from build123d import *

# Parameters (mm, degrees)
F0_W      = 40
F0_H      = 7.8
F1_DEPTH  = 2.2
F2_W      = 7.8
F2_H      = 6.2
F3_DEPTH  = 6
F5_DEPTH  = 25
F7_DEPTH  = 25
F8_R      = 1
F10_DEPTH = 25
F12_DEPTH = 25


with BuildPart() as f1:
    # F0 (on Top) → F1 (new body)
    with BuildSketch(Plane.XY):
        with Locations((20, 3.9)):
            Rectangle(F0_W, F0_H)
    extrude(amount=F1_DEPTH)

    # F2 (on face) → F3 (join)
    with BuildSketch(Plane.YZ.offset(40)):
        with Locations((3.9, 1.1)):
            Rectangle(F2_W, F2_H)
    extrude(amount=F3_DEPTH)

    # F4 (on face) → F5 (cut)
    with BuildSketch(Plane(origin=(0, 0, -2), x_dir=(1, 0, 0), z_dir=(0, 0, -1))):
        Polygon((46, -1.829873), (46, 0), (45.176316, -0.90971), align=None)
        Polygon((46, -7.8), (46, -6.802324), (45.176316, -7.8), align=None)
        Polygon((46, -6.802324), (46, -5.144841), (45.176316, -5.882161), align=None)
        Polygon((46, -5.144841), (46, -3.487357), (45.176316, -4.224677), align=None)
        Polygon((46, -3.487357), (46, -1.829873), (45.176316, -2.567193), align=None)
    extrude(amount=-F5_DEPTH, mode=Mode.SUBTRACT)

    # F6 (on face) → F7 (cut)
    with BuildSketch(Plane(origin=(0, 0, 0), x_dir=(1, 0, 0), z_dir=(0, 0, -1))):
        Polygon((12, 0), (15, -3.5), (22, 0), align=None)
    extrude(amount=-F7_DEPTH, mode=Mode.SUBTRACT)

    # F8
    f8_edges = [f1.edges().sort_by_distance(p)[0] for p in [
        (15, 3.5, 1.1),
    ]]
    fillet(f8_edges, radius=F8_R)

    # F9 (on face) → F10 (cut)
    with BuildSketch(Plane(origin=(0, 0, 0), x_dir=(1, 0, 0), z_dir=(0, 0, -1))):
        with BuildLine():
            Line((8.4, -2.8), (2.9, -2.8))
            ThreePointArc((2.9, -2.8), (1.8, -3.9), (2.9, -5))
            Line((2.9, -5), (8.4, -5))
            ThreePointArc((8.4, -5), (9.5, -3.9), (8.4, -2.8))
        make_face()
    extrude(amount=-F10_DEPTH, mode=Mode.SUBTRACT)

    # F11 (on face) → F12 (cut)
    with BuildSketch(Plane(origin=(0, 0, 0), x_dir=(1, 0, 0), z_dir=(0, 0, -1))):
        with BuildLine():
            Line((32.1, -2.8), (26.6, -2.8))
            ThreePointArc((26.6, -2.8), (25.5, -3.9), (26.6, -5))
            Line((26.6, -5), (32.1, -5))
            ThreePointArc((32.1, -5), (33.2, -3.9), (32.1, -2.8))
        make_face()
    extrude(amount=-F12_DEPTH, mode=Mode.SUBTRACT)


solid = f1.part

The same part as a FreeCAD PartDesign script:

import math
import FreeCAD as App
import Part
import Sketcher
from FreeCAD import Vector
Q = App.Units.Quantity


def edges_at(feature, points):
    """Names of the edges that pass closest to the given points."""
    edges = feature.Shape.Edges
    near = lambda p: min(range(len(edges)), key=lambda i: edges[i].distToShape(Part.Vertex(*p))[0])
    return sorted({f"Edge{near(p) + 1}" for p in points})

doc = App.newDocument("Part")
params = doc.addObject("Spreadsheet::Sheet", "Params")
for row, (alias, value) in enumerate([
    ("sketch1_width", "40 mm"),
    ("sketch1_height", "7.8 mm"),
    ("pad1_length", "2.2 mm"),
    ("sketch2_width", "7.8 mm"),
    ("sketch2_height", "6.2 mm"),
    ("pad2_length", "6 mm"),
    ("pocket1_length", "25 mm"),
    ("sketch4_width", "10 mm"),
    ("pocket2_length", "25 mm"),
    ("fillet_radius", "1 mm"),
    ("sketch5_radius", "1.1 mm"),
    ("sketch5_width", "5.5 mm"),
    ("pocket3_length", "25 mm"),
    ("sketch6_radius", "1.1 mm"),
    ("sketch6_width", "5.5 mm"),
    ("pocket4_length", "25 mm"),
], start=1):
    params.set(f"A{row}", alias)
    params.set(f"B{row}", "=" + value)
    params.setAlias(f"B{row}", alias)

body = doc.addObject("PartDesign::Body", "Body")

# Sketch on XY plane
sketch1 = doc.addObject("Sketcher::SketchObject", "Sketch")
body.addObject(sketch1)
sketch1.AttachmentSupport = (doc.XY_Plane, [""])
sketch1.MapMode = "FlatFace"
sketch1.addGeometry([
    Part.LineSegment(Vector(0, 7.8, 0), Vector(0, 0, 0)),
    Part.LineSegment(Vector(0, 0, 0), Vector(40, 0, 0)),
    Part.LineSegment(Vector(40, 0, 0), Vector(40, 7.8, 0)),
    Part.LineSegment(Vector(40, 7.8, 0), Vector(0, 7.8, 0)),
], False)
sketch1.addConstraint([
    Sketcher.Constraint("Coincident", 0, 2, 1, 1),
    Sketcher.Constraint("Coincident", 1, 2, 2, 1),
    Sketcher.Constraint("Coincident", 2, 2, 3, 1),
    Sketcher.Constraint("Coincident", 3, 2, 0, 1),
    Sketcher.Constraint("Vertical", 0),
    Sketcher.Constraint("Horizontal", 1),
    Sketcher.Constraint("Vertical", 2),
    Sketcher.Constraint("Horizontal", 3),
    Sketcher.Constraint("Coincident", 0, 2, -1, 1),
    Sketcher.Constraint("DistanceX", 1, 1, 1, 2, Q("40 mm")),
    Sketcher.Constraint("DistanceY", 0, 2, 0, 1, Q("7.8 mm")),
])
sketch1.setExpression("Constraints[9]", "Params.sketch1_width")
sketch1.setExpression("Constraints[10]", "Params.sketch1_height")
pad1 = doc.addObject("PartDesign::Pad", "Pad")
body.addObject(pad1)
pad1.Profile = sketch1
pad1.setExpression("Length", "Params.pad1_length")

# Sketch on YZ plane
sketch2 = doc.addObject("Sketcher::SketchObject", "Sketch001")
body.addObject(sketch2)
sketch2.AttachmentSupport = (doc.YZ_Plane, [""])
sketch2.MapMode = "FlatFace"
sketch2.AttachmentOffset = App.Placement(Vector(0, 0, 40), App.Rotation())
sketch2.addGeometry([
    Part.LineSegment(Vector(0, 4.2, 0), Vector(0, -2, 0)),
    Part.LineSegment(Vector(0, -2, 0), Vector(7.8, -2, 0)),
    Part.LineSegment(Vector(7.8, -2, 0), Vector(7.8, 4.2, 0)),
    Part.LineSegment(Vector(7.8, 4.2, 0), Vector(0, 4.2, 0)),
], False)
sketch2.addConstraint([
    Sketcher.Constraint("Coincident", 0, 2, 1, 1),
    Sketcher.Constraint("Coincident", 1, 2, 2, 1),
    Sketcher.Constraint("Coincident", 2, 2, 3, 1),
    Sketcher.Constraint("Coincident", 3, 2, 0, 1),
    Sketcher.Constraint("Vertical", 0),
    Sketcher.Constraint("Horizontal", 1),
    Sketcher.Constraint("Vertical", 2),
    Sketcher.Constraint("Horizontal", 3),
    Sketcher.Constraint("PointOnObject", 0, 2, -2),
    Sketcher.Constraint("DistanceX", 1, 1, 1, 2, Q("7.8 mm")),
    Sketcher.Constraint("DistanceY", 0, 2, 0, 1, Q("6.2 mm")),
    Sketcher.Constraint("DistanceY", 0, 2, -1, 1, Q("2 mm")),
])
sketch2.setExpression("Constraints[9]", "Params.sketch2_width")
sketch2.setExpression("Constraints[10]", "Params.sketch2_height")
pad2 = doc.addObject("PartDesign::Pad", "Pad001")
body.addObject(pad2)
pad2.Profile = sketch2
pad2.setExpression("Length", "Params.pad2_length")

# Sketch on XY plane
sketch3 = doc.addObject("Sketcher::SketchObject", "Sketch002")
body.addObject(sketch3)
sketch3.AttachmentSupport = (doc.XY_Plane, [""])
sketch3.MapMode = "FlatFace"
sketch3.AttachmentOffset = App.Placement(Vector(0, 0, -2), App.Rotation())
sketch3.addGeometry([
    Part.LineSegment(Vector(46, 1.829873, 0), Vector(46, 0, 0)),  # 0
    Part.LineSegment(Vector(46, 0, 0), Vector(45.176316, 0.90971, 0)),  # 1
    Part.LineSegment(Vector(45.176316, 0.90971, 0), Vector(46, 1.829873, 0)),  # 2
    Part.LineSegment(Vector(46, 7.8, 0), Vector(46, 6.802324, 0)),  # 3
    Part.LineSegment(Vector(46, 6.802324, 0), Vector(45.176316, 7.8, 0)),  # 4
    Part.LineSegment(Vector(45.176316, 7.8, 0), Vector(46, 7.8, 0)),  # 5
    Part.LineSegment(Vector(46, 6.802324, 0), Vector(46, 5.144841, 0)),  # 6
    Part.LineSegment(Vector(46, 5.144841, 0), Vector(45.176316, 5.882161, 0)),  # 7
    Part.LineSegment(Vector(45.176316, 5.882161, 0), Vector(46, 6.802324, 0)),  # 8
    Part.LineSegment(Vector(46, 5.144841, 0), Vector(46, 3.487357, 0)),  # 9
    Part.LineSegment(Vector(46, 3.487357, 0), Vector(45.176316, 4.224677, 0)),  # 10
    Part.LineSegment(Vector(45.176316, 4.224677, 0), Vector(46, 5.144841, 0)),  # 11
    Part.LineSegment(Vector(46, 3.487357, 0), Vector(46, 1.829873, 0)),  # 12
    Part.LineSegment(Vector(46, 1.829873, 0), Vector(45.176316, 2.567193, 0)),  # 13
    Part.LineSegment(Vector(45.176316, 2.567193, 0), Vector(46, 3.487357, 0)),  # 14
], False)
sketch3.addConstraint([
    Sketcher.Constraint("Coincident", 0, 2, 1, 1),
    Sketcher.Constraint("Coincident", 1, 2, 2, 1),
    Sketcher.Constraint("Coincident", 2, 2, 0, 1),
    Sketcher.Constraint("Coincident", 3, 2, 4, 1),
    Sketcher.Constraint("Coincident", 4, 2, 5, 1),
    Sketcher.Constraint("Coincident", 5, 2, 3, 1),
    Sketcher.Constraint("Coincident", 6, 2, 7, 1),
    Sketcher.Constraint("Coincident", 7, 2, 8, 1),
    Sketcher.Constraint("Coincident", 8, 2, 6, 1),
    Sketcher.Constraint("Coincident", 9, 2, 10, 1),
    Sketcher.Constraint("Coincident", 10, 2, 11, 1),
    Sketcher.Constraint("Coincident", 11, 2, 9, 1),
    Sketcher.Constraint("Coincident", 12, 2, 13, 1),
    Sketcher.Constraint("Coincident", 13, 2, 14, 1),
    Sketcher.Constraint("Coincident", 14, 2, 12, 1),
    Sketcher.Constraint("Vertical", 0),
    Sketcher.Constraint("Vertical", 3),
    Sketcher.Constraint("Horizontal", 5),
    Sketcher.Constraint("Vertical", 6),
    Sketcher.Constraint("Vertical", 9),
    Sketcher.Constraint("Vertical", 12),
    Sketcher.Constraint("Coincident", 8, 2, 3, 2),
    Sketcher.Constraint("Coincident", 11, 2, 6, 2),
    Sketcher.Constraint("Coincident", 12, 2, 2, 2),
    Sketcher.Constraint("Coincident", 14, 2, 9, 2),
    Sketcher.Constraint("PointOnObject", 0, 2, -1),
    Sketcher.Constraint("Perpendicular", 2, 7),
    Sketcher.Constraint("Perpendicular", 7, 8),
    Sketcher.Constraint("Perpendicular", 8, 10),
    Sketcher.Constraint("Perpendicular", 10, 11),
    Sketcher.Constraint("Perpendicular", 11, 13),
    Sketcher.Constraint("Perpendicular", 13, 14),
    Sketcher.Constraint("Vertical", 1, 2, 4, 2),
    Sketcher.Constraint("Vertical", 4, 2, 7, 2),
    Sketcher.Constraint("Vertical", 7, 2, 10, 2),
    Sketcher.Constraint("Vertical", 10, 2, 13, 2),
    Sketcher.Constraint("DistanceX", -1, 1, 0, 2, Q("46 mm")),
    Sketcher.Constraint("DistanceY", -1, 1, 4, 2, Q("7.8 mm")),
    Sketcher.Constraint("Distance", 2, Q("1.234972 mm")),
    Sketcher.Constraint("Distance", 4, Q("1.293759 mm")),
    Sketcher.Constraint("DistanceX", 5, 1, 5, 2, Q("0.823684 mm")),
])
pocket1 = doc.addObject("PartDesign::Pocket", "Pocket")
body.addObject(pocket1)
pocket1.Profile = sketch3
pocket1.setExpression("Length", "Params.pocket1_length")
pocket1.Reversed = True

# Sketch on XY plane
sketch4 = doc.addObject("Sketcher::SketchObject", "Sketch003")
body.addObject(sketch4)
sketch4.AttachmentSupport = (doc.XY_Plane, [""])
sketch4.MapMode = "FlatFace"
sketch4.addGeometry([
    Part.LineSegment(Vector(12, 0, 0), Vector(15, 3.5, 0)),
    Part.LineSegment(Vector(15, 3.5, 0), Vector(22, 0, 0)),
    Part.LineSegment(Vector(22, 0, 0), Vector(12, 0, 0)),
], False)
sketch4.addConstraint([
    Sketcher.Constraint("Coincident", 0, 2, 1, 1),
    Sketcher.Constraint("Coincident", 1, 2, 2, 1),
    Sketcher.Constraint("Coincident", 2, 2, 0, 1),
    Sketcher.Constraint("Horizontal", 2),
    Sketcher.Constraint("PointOnObject", 1, 2, -1),
    Sketcher.Constraint("DistanceX", 2, 2, 2, 1, Q("10 mm")),
    Sketcher.Constraint("DistanceX", -1, 1, 0, 2, Q("15 mm")),
    Sketcher.Constraint("DistanceX", -1, 1, 1, 2, Q("22 mm")),
    Sketcher.Constraint("DistanceY", -1, 1, 0, 2, Q("3.5 mm")),
])
sketch4.setExpression("Constraints[5]", "Params.sketch4_width")
pocket2 = doc.addObject("PartDesign::Pocket", "Pocket001")
body.addObject(pocket2)
pocket2.Profile = sketch4
pocket2.setExpression("Length", "Params.pocket2_length")
pocket2.Reversed = True
doc.recompute()

fillet = doc.addObject("PartDesign::Fillet", "Fillet")
body.addObject(fillet)
fillet.Base = (pocket2, edges_at(pocket2, [(15, 3.5, 1.1)]))
fillet.setExpression("Radius", "Params.fillet_radius")

# Sketch on XY plane
sketch5 = doc.addObject("Sketcher::SketchObject", "Sketch004")
body.addObject(sketch5)
sketch5.AttachmentSupport = (doc.XY_Plane, [""])
sketch5.MapMode = "FlatFace"
sketch5.addGeometry([
    Part.LineSegment(Vector(8.4, 2.8, 0), Vector(2.9, 2.8, 0)),
    Part.ArcOfCircle(Part.Circle(Vector(2.9, 3.9, 0), Vector(0, 0, 1), 1.1), math.radians(90), math.radians(270)),
    Part.LineSegment(Vector(2.9, 5, 0), Vector(8.4, 5, 0)),
    Part.ArcOfCircle(Part.Circle(Vector(8.4, 3.9, 0), Vector(0, 0, 1), 1.1), math.radians(-90), math.radians(90)),
], False)
sketch5.addConstraint([
    Sketcher.Constraint("Tangent", 0, 2, 1, 2),
    Sketcher.Constraint("Tangent", 1, 1, 2, 1),
    Sketcher.Constraint("Tangent", 2, 2, 3, 2),
    Sketcher.Constraint("Tangent", 3, 1, 0, 1),
    Sketcher.Constraint("Horizontal", 0),
    Sketcher.Constraint("Horizontal", 2),
    Sketcher.Constraint("Radius", 1, Q("1.1 mm")),
    Sketcher.Constraint("DistanceX", 0, 2, 0, 1, Q("5.5 mm")),
    Sketcher.Constraint("DistanceY", -1, 1, 1, 1, Q("5 mm")),
    Sketcher.Constraint("DistanceX", -1, 1, 1, 3, Q("2.9 mm")),
])
sketch5.setExpression("Constraints[6]", "Params.sketch5_radius")
sketch5.setExpression("Constraints[7]", "Params.sketch5_width")
pocket3 = doc.addObject("PartDesign::Pocket", "Pocket002")
body.addObject(pocket3)
pocket3.Profile = sketch5
pocket3.setExpression("Length", "Params.pocket3_length")
pocket3.Reversed = True

# Sketch on XY plane
sketch6 = doc.addObject("Sketcher::SketchObject", "Sketch005")
body.addObject(sketch6)
sketch6.AttachmentSupport = (doc.XY_Plane, [""])
sketch6.MapMode = "FlatFace"
sketch6.addGeometry([
    Part.LineSegment(Vector(32.1, 2.8, 0), Vector(26.6, 2.8, 0)),
    Part.ArcOfCircle(Part.Circle(Vector(26.6, 3.9, 0), Vector(0, 0, 1), 1.1), math.radians(90), math.radians(270)),
    Part.LineSegment(Vector(26.6, 5, 0), Vector(32.1, 5, 0)),
    Part.ArcOfCircle(Part.Circle(Vector(32.1, 3.9, 0), Vector(0, 0, 1), 1.1), math.radians(-90), math.radians(90)),
], False)
sketch6.addConstraint([
    Sketcher.Constraint("Tangent", 0, 2, 1, 2),
    Sketcher.Constraint("Tangent", 1, 1, 2, 1),
    Sketcher.Constraint("Tangent", 2, 2, 3, 2),
    Sketcher.Constraint("Tangent", 3, 1, 0, 1),
    Sketcher.Constraint("Horizontal", 0),
    Sketcher.Constraint("Horizontal", 2),
    Sketcher.Constraint("Radius", 1, Q("1.1 mm")),
    Sketcher.Constraint("DistanceX", 0, 2, 0, 1, Q("5.5 mm")),
    Sketcher.Constraint("DistanceY", -1, 1, 1, 1, Q("5 mm")),
    Sketcher.Constraint("DistanceX", -1, 1, 1, 3, Q("26.6 mm")),
])
sketch6.setExpression("Constraints[6]", "Params.sketch6_radius")
sketch6.setExpression("Constraints[7]", "Params.sketch6_width")
pocket4 = doc.addObject("PartDesign::Pocket", "Pocket003")
body.addObject(pocket4)
pocket4.Profile = sketch6
pocket4.setExpression("Length", "Params.pocket4_length")
pocket4.Reversed = True

doc.recompute()
